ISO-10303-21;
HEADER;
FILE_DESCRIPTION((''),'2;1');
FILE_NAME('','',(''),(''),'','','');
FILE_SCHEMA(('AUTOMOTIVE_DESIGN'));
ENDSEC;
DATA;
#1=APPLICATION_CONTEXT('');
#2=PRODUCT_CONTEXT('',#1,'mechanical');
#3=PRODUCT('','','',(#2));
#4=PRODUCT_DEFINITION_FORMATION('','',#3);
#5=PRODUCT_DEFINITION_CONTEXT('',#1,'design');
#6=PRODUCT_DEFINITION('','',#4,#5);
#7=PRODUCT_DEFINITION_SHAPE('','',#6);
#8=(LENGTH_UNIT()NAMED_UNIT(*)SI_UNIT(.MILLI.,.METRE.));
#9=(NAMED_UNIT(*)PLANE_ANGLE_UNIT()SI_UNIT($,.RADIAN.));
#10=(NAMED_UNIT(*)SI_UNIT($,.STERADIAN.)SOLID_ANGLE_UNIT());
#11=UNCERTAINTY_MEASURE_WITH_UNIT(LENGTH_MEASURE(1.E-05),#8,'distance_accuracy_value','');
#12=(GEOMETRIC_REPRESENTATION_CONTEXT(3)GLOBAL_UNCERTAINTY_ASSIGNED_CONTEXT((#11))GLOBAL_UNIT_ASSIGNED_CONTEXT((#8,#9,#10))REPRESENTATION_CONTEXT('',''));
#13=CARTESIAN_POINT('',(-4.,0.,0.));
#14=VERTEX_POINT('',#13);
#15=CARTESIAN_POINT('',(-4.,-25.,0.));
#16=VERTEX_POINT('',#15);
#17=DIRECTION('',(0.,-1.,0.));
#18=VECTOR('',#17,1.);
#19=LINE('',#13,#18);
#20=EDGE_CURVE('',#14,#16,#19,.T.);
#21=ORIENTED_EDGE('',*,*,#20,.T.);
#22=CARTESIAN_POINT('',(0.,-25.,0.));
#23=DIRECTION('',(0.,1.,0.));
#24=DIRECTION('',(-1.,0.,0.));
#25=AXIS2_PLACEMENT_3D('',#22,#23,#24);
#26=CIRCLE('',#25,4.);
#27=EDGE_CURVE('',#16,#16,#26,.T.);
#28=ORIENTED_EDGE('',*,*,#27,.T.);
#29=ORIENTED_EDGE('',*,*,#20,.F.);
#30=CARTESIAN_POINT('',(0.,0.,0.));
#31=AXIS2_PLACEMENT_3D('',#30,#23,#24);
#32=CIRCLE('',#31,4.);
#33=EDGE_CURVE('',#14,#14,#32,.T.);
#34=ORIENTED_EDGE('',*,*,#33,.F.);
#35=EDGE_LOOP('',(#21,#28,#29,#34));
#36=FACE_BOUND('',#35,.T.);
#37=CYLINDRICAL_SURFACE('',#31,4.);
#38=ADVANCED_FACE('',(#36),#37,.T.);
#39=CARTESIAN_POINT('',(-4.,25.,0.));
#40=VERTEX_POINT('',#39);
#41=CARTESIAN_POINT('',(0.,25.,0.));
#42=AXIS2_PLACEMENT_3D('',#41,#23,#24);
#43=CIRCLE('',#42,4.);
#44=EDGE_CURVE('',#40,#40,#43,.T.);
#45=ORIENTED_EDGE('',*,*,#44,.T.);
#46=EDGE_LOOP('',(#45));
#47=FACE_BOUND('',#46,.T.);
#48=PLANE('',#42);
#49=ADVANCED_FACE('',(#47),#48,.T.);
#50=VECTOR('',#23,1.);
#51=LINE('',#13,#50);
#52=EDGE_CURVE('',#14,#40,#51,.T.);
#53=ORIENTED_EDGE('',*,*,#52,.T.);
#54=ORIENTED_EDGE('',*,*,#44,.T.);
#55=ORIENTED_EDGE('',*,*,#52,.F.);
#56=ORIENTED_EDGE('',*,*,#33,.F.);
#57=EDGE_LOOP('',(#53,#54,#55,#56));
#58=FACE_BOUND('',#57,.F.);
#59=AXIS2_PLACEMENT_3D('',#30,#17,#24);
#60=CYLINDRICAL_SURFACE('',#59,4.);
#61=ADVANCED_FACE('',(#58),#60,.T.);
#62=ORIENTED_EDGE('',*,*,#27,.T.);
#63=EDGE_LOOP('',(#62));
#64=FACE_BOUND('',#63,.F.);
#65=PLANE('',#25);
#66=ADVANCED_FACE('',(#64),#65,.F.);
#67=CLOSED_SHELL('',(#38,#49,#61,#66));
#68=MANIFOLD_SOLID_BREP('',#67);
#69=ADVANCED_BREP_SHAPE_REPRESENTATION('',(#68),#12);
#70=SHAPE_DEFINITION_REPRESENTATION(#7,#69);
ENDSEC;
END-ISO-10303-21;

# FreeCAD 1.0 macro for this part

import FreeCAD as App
import Part
import Sketcher

V = App.Vector

doc = App.newDocument("Part")
body = doc.addObject("PartDesign::Body", "Body")

sketch1 = body.newObject("Sketcher::SketchObject", "Sketch")
sketch1.AttachmentSupport = (doc.getObject("XZ_Plane"), [""])
sketch1.MapMode = "FlatFace"
sketch1.addGeometry(Part.Circle(V(0, 0, 0), V(0, 0, 1), 4), False)
sketch1.addConstraint([
    Sketcher.Constraint("Coincident", 0, 3, -1, 1),
    Sketcher.Constraint("Diameter", 0, 8.0),
])
pad1 = body.newObject("PartDesign::Pad", "Pad")
pad1.Profile = sketch1
pad1.Length = 50
pad1.Midplane = True

doc.recompute()
